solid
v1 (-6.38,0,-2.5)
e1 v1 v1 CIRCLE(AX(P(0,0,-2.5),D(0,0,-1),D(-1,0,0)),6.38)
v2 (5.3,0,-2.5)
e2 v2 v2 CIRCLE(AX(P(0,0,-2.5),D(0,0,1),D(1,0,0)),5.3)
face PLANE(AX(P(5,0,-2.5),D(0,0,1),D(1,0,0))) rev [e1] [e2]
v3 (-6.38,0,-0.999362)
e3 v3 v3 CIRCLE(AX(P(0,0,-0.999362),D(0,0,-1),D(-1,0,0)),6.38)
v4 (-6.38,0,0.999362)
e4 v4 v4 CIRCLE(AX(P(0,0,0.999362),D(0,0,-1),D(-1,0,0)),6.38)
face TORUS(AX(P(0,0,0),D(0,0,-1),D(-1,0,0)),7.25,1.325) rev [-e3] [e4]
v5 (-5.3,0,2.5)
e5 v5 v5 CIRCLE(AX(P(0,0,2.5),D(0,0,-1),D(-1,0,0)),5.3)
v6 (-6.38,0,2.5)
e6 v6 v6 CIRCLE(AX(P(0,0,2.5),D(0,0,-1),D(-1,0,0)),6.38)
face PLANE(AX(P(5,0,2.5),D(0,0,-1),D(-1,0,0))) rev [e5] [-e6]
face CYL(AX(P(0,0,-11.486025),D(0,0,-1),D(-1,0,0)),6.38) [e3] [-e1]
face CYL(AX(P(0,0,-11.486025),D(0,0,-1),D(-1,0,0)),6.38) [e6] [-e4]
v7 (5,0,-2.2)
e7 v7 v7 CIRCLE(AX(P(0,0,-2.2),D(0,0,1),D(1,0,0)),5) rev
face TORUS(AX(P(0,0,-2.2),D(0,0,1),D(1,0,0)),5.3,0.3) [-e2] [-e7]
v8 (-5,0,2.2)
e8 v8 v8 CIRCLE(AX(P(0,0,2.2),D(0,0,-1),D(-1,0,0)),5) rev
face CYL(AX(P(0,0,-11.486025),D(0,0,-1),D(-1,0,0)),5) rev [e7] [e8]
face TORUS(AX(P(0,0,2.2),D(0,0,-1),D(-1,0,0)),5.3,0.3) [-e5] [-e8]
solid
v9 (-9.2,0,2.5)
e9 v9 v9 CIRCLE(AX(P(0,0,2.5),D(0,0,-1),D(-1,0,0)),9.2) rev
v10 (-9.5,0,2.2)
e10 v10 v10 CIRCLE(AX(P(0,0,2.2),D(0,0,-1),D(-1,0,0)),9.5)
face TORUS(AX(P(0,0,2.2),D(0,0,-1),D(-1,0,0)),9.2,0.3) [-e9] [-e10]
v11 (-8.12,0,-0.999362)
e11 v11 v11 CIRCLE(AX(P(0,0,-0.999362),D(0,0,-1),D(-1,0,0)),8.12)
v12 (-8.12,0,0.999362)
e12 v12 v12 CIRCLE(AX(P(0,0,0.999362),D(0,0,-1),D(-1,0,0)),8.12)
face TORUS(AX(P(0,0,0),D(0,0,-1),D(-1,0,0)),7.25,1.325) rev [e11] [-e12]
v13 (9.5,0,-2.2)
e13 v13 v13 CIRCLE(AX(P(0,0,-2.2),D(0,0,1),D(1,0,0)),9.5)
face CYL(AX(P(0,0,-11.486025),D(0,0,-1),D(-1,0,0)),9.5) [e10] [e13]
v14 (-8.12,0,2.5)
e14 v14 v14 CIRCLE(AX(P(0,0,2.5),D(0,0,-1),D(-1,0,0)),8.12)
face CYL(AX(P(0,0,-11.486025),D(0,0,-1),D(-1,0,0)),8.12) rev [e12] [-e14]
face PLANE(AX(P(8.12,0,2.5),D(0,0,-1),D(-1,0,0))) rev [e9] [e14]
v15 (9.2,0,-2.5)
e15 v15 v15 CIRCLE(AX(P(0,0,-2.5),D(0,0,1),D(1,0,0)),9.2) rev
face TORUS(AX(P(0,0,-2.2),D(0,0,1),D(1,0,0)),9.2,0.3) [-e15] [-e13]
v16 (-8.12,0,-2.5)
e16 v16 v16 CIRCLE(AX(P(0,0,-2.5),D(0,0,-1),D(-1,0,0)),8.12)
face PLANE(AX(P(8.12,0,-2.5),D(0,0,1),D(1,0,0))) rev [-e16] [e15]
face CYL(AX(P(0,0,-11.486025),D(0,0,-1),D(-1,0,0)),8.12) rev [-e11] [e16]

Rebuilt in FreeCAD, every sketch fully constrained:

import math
import FreeCAD as App
import Part
import Sketcher

V = App.Vector
Q = App.Units.Quantity


def edges_at(feature, points):
    """Names of the edges that pass closest to the given points."""
    edges = feature.Shape.Edges
    near = lambda p: min(range(len(edges)), key=lambda i: edges[i].distToShape(Part.Vertex(*p))[0])
    return sorted({f"Edge{near(p) + 1}" for p in points})

doc = App.newDocument("Part")
body = doc.addObject("PartDesign::Body", "Body")
body.AllowCompound = True

sketch1 = body.newObject("Sketcher::SketchObject", "Sketch")
sketch1.AttachmentSupport = (doc.getObject("XZ_Plane"), [""])
sketch1.MapMode = "FlatFace"
sketch1.addGeometry([
    Part.LineSegment(V(6.4, 2.5, 0), V(6.4, 1, 0)),
    Part.ArcOfCircle(Part.Circle(V(7.3, 0, 0), V(0, 0, 1), 1.3), math.radians(131), math.radians(229)),
    Part.LineSegment(V(6.4, -1, 0), V(6.4, -2.5, 0)),
    Part.LineSegment(V(6.4, -2.5, 0), V(5, -2.5, 0)),
    Part.LineSegment(V(5, -2.5, 0), V(5, 2.5, 0)),
    Part.LineSegment(V(5, 2.5, 0), V(6.4, 2.5, 0)),
    Part.LineSegment(V(9.5, 2.5, 0), V(9.5, -2.5, 0)),
    Part.LineSegment(V(9.5, -2.5, 0), V(8.1, -2.5, 0)),
    Part.LineSegment(V(8.1, -2.5, 0), V(8.1, -1, 0)),
    Part.ArcOfCircle(Part.Circle(V(7.2, 0, 0), V(0, 0, 1), 1.3), math.radians(-49), math.radians(49)),
    Part.LineSegment(V(8.1, 1, 0), V(8.1, 2.5, 0)),
    Part.LineSegment(V(8.1, 2.5, 0), V(9.5, 2.5, 0)),
], False)
sketch1.addConstraint([
    Sketcher.Constraint("Coincident", 0, 2, 1, 1),
    Sketcher.Constraint("Coincident", 1, 2, 2, 1),
    Sketcher.Constraint("Coincident", 2, 2, 3, 1),
    Sketcher.Constraint("Coincident", 3, 2, 4, 1),
    Sketcher.Constraint("Coincident", 4, 2, 5, 1),
    Sketcher.Constraint("Coincident", 5, 2, 0, 1),
    Sketcher.Constraint("Coincident", 6, 2, 7, 1),
    Sketcher.Constraint("Coincident", 7, 2, 8, 1),
    Sketcher.Constraint("Coincident", 8, 2, 9, 1),
    Sketcher.Constraint("Coincident", 9, 2, 10, 1),
    Sketcher.Constraint("Coincident", 10, 2, 11, 1),
    Sketcher.Constraint("Coincident", 11, 2, 6, 1),
    Sketcher.Constraint("Vertical", 0),
    Sketcher.Constraint("Vertical", 2),
    Sketcher.Constraint("Horizontal", 3),
    Sketcher.Constraint("Vertical", 4),
    Sketcher.Constraint("Horizontal", 5),
    Sketcher.Constraint("Vertical", 6),
    Sketcher.Constraint("Horizontal", 7),
    Sketcher.Constraint("Vertical", 8),
    Sketcher.Constraint("Vertical", 10),
    Sketcher.Constraint("Horizontal", 11),
    Sketcher.Constraint("Coincident", 9, 3, 1, 3),
    Sketcher.Constraint("Equal", 1, 9),
    Sketcher.Constraint("Symmetric", 0, 2, 1, 2, -1),
    Sketcher.Constraint("Symmetric", 7, 2, 10, 2, -1),
    Sketcher.Constraint("Horizontal", 3, 2, 6, 2),
    Sketcher.Constraint("Horizontal", 1, 2, 8, 2),
    Sketcher.Constraint("Horizontal", 5, 2, 10, 2),
    Sketcher.Constraint("Equal", 5, 7),
    Sketcher.Constraint("DistanceY", 4, 1, 4, 2, Q("5 mm")),
    Sketcher.Constraint("DistanceX", -1, 1, 3, 2, Q("5 mm")),
    Sketcher.Constraint("Radius", 1, Q("1.325 mm")),
    Sketcher.Constraint("DistanceX", 3, 2, 3, 1, Q("1.38 mm")),
    Sketcher.Constraint("DistanceX", -1, 1, 6, 2, Q("9.5 mm")),
])
revolution = body.newObject("PartDesign::Revolution", "Revolution")
revolution.Profile = sketch1
revolution.ReferenceAxis = (sketch1, ["V_Axis"])
revolution.Angle = 360
doc.recompute()

fillet = body.newObject("PartDesign::Fillet", "Fillet")
fillet.Base = (revolution, edges_at(revolution, [(9.5, 0, -2.5), (9.5, 0, 2.5)]))
fillet.Radius = 0.3
doc.recompute()

fillet2 = body.newObject("PartDesign::Fillet", "Fillet001")
fillet2.Base = (fillet, edges_at(fillet, [(5, 0, -2.5), (5, 0, 2.5)]))
fillet2.Radius = 0.3

doc.recompute()
